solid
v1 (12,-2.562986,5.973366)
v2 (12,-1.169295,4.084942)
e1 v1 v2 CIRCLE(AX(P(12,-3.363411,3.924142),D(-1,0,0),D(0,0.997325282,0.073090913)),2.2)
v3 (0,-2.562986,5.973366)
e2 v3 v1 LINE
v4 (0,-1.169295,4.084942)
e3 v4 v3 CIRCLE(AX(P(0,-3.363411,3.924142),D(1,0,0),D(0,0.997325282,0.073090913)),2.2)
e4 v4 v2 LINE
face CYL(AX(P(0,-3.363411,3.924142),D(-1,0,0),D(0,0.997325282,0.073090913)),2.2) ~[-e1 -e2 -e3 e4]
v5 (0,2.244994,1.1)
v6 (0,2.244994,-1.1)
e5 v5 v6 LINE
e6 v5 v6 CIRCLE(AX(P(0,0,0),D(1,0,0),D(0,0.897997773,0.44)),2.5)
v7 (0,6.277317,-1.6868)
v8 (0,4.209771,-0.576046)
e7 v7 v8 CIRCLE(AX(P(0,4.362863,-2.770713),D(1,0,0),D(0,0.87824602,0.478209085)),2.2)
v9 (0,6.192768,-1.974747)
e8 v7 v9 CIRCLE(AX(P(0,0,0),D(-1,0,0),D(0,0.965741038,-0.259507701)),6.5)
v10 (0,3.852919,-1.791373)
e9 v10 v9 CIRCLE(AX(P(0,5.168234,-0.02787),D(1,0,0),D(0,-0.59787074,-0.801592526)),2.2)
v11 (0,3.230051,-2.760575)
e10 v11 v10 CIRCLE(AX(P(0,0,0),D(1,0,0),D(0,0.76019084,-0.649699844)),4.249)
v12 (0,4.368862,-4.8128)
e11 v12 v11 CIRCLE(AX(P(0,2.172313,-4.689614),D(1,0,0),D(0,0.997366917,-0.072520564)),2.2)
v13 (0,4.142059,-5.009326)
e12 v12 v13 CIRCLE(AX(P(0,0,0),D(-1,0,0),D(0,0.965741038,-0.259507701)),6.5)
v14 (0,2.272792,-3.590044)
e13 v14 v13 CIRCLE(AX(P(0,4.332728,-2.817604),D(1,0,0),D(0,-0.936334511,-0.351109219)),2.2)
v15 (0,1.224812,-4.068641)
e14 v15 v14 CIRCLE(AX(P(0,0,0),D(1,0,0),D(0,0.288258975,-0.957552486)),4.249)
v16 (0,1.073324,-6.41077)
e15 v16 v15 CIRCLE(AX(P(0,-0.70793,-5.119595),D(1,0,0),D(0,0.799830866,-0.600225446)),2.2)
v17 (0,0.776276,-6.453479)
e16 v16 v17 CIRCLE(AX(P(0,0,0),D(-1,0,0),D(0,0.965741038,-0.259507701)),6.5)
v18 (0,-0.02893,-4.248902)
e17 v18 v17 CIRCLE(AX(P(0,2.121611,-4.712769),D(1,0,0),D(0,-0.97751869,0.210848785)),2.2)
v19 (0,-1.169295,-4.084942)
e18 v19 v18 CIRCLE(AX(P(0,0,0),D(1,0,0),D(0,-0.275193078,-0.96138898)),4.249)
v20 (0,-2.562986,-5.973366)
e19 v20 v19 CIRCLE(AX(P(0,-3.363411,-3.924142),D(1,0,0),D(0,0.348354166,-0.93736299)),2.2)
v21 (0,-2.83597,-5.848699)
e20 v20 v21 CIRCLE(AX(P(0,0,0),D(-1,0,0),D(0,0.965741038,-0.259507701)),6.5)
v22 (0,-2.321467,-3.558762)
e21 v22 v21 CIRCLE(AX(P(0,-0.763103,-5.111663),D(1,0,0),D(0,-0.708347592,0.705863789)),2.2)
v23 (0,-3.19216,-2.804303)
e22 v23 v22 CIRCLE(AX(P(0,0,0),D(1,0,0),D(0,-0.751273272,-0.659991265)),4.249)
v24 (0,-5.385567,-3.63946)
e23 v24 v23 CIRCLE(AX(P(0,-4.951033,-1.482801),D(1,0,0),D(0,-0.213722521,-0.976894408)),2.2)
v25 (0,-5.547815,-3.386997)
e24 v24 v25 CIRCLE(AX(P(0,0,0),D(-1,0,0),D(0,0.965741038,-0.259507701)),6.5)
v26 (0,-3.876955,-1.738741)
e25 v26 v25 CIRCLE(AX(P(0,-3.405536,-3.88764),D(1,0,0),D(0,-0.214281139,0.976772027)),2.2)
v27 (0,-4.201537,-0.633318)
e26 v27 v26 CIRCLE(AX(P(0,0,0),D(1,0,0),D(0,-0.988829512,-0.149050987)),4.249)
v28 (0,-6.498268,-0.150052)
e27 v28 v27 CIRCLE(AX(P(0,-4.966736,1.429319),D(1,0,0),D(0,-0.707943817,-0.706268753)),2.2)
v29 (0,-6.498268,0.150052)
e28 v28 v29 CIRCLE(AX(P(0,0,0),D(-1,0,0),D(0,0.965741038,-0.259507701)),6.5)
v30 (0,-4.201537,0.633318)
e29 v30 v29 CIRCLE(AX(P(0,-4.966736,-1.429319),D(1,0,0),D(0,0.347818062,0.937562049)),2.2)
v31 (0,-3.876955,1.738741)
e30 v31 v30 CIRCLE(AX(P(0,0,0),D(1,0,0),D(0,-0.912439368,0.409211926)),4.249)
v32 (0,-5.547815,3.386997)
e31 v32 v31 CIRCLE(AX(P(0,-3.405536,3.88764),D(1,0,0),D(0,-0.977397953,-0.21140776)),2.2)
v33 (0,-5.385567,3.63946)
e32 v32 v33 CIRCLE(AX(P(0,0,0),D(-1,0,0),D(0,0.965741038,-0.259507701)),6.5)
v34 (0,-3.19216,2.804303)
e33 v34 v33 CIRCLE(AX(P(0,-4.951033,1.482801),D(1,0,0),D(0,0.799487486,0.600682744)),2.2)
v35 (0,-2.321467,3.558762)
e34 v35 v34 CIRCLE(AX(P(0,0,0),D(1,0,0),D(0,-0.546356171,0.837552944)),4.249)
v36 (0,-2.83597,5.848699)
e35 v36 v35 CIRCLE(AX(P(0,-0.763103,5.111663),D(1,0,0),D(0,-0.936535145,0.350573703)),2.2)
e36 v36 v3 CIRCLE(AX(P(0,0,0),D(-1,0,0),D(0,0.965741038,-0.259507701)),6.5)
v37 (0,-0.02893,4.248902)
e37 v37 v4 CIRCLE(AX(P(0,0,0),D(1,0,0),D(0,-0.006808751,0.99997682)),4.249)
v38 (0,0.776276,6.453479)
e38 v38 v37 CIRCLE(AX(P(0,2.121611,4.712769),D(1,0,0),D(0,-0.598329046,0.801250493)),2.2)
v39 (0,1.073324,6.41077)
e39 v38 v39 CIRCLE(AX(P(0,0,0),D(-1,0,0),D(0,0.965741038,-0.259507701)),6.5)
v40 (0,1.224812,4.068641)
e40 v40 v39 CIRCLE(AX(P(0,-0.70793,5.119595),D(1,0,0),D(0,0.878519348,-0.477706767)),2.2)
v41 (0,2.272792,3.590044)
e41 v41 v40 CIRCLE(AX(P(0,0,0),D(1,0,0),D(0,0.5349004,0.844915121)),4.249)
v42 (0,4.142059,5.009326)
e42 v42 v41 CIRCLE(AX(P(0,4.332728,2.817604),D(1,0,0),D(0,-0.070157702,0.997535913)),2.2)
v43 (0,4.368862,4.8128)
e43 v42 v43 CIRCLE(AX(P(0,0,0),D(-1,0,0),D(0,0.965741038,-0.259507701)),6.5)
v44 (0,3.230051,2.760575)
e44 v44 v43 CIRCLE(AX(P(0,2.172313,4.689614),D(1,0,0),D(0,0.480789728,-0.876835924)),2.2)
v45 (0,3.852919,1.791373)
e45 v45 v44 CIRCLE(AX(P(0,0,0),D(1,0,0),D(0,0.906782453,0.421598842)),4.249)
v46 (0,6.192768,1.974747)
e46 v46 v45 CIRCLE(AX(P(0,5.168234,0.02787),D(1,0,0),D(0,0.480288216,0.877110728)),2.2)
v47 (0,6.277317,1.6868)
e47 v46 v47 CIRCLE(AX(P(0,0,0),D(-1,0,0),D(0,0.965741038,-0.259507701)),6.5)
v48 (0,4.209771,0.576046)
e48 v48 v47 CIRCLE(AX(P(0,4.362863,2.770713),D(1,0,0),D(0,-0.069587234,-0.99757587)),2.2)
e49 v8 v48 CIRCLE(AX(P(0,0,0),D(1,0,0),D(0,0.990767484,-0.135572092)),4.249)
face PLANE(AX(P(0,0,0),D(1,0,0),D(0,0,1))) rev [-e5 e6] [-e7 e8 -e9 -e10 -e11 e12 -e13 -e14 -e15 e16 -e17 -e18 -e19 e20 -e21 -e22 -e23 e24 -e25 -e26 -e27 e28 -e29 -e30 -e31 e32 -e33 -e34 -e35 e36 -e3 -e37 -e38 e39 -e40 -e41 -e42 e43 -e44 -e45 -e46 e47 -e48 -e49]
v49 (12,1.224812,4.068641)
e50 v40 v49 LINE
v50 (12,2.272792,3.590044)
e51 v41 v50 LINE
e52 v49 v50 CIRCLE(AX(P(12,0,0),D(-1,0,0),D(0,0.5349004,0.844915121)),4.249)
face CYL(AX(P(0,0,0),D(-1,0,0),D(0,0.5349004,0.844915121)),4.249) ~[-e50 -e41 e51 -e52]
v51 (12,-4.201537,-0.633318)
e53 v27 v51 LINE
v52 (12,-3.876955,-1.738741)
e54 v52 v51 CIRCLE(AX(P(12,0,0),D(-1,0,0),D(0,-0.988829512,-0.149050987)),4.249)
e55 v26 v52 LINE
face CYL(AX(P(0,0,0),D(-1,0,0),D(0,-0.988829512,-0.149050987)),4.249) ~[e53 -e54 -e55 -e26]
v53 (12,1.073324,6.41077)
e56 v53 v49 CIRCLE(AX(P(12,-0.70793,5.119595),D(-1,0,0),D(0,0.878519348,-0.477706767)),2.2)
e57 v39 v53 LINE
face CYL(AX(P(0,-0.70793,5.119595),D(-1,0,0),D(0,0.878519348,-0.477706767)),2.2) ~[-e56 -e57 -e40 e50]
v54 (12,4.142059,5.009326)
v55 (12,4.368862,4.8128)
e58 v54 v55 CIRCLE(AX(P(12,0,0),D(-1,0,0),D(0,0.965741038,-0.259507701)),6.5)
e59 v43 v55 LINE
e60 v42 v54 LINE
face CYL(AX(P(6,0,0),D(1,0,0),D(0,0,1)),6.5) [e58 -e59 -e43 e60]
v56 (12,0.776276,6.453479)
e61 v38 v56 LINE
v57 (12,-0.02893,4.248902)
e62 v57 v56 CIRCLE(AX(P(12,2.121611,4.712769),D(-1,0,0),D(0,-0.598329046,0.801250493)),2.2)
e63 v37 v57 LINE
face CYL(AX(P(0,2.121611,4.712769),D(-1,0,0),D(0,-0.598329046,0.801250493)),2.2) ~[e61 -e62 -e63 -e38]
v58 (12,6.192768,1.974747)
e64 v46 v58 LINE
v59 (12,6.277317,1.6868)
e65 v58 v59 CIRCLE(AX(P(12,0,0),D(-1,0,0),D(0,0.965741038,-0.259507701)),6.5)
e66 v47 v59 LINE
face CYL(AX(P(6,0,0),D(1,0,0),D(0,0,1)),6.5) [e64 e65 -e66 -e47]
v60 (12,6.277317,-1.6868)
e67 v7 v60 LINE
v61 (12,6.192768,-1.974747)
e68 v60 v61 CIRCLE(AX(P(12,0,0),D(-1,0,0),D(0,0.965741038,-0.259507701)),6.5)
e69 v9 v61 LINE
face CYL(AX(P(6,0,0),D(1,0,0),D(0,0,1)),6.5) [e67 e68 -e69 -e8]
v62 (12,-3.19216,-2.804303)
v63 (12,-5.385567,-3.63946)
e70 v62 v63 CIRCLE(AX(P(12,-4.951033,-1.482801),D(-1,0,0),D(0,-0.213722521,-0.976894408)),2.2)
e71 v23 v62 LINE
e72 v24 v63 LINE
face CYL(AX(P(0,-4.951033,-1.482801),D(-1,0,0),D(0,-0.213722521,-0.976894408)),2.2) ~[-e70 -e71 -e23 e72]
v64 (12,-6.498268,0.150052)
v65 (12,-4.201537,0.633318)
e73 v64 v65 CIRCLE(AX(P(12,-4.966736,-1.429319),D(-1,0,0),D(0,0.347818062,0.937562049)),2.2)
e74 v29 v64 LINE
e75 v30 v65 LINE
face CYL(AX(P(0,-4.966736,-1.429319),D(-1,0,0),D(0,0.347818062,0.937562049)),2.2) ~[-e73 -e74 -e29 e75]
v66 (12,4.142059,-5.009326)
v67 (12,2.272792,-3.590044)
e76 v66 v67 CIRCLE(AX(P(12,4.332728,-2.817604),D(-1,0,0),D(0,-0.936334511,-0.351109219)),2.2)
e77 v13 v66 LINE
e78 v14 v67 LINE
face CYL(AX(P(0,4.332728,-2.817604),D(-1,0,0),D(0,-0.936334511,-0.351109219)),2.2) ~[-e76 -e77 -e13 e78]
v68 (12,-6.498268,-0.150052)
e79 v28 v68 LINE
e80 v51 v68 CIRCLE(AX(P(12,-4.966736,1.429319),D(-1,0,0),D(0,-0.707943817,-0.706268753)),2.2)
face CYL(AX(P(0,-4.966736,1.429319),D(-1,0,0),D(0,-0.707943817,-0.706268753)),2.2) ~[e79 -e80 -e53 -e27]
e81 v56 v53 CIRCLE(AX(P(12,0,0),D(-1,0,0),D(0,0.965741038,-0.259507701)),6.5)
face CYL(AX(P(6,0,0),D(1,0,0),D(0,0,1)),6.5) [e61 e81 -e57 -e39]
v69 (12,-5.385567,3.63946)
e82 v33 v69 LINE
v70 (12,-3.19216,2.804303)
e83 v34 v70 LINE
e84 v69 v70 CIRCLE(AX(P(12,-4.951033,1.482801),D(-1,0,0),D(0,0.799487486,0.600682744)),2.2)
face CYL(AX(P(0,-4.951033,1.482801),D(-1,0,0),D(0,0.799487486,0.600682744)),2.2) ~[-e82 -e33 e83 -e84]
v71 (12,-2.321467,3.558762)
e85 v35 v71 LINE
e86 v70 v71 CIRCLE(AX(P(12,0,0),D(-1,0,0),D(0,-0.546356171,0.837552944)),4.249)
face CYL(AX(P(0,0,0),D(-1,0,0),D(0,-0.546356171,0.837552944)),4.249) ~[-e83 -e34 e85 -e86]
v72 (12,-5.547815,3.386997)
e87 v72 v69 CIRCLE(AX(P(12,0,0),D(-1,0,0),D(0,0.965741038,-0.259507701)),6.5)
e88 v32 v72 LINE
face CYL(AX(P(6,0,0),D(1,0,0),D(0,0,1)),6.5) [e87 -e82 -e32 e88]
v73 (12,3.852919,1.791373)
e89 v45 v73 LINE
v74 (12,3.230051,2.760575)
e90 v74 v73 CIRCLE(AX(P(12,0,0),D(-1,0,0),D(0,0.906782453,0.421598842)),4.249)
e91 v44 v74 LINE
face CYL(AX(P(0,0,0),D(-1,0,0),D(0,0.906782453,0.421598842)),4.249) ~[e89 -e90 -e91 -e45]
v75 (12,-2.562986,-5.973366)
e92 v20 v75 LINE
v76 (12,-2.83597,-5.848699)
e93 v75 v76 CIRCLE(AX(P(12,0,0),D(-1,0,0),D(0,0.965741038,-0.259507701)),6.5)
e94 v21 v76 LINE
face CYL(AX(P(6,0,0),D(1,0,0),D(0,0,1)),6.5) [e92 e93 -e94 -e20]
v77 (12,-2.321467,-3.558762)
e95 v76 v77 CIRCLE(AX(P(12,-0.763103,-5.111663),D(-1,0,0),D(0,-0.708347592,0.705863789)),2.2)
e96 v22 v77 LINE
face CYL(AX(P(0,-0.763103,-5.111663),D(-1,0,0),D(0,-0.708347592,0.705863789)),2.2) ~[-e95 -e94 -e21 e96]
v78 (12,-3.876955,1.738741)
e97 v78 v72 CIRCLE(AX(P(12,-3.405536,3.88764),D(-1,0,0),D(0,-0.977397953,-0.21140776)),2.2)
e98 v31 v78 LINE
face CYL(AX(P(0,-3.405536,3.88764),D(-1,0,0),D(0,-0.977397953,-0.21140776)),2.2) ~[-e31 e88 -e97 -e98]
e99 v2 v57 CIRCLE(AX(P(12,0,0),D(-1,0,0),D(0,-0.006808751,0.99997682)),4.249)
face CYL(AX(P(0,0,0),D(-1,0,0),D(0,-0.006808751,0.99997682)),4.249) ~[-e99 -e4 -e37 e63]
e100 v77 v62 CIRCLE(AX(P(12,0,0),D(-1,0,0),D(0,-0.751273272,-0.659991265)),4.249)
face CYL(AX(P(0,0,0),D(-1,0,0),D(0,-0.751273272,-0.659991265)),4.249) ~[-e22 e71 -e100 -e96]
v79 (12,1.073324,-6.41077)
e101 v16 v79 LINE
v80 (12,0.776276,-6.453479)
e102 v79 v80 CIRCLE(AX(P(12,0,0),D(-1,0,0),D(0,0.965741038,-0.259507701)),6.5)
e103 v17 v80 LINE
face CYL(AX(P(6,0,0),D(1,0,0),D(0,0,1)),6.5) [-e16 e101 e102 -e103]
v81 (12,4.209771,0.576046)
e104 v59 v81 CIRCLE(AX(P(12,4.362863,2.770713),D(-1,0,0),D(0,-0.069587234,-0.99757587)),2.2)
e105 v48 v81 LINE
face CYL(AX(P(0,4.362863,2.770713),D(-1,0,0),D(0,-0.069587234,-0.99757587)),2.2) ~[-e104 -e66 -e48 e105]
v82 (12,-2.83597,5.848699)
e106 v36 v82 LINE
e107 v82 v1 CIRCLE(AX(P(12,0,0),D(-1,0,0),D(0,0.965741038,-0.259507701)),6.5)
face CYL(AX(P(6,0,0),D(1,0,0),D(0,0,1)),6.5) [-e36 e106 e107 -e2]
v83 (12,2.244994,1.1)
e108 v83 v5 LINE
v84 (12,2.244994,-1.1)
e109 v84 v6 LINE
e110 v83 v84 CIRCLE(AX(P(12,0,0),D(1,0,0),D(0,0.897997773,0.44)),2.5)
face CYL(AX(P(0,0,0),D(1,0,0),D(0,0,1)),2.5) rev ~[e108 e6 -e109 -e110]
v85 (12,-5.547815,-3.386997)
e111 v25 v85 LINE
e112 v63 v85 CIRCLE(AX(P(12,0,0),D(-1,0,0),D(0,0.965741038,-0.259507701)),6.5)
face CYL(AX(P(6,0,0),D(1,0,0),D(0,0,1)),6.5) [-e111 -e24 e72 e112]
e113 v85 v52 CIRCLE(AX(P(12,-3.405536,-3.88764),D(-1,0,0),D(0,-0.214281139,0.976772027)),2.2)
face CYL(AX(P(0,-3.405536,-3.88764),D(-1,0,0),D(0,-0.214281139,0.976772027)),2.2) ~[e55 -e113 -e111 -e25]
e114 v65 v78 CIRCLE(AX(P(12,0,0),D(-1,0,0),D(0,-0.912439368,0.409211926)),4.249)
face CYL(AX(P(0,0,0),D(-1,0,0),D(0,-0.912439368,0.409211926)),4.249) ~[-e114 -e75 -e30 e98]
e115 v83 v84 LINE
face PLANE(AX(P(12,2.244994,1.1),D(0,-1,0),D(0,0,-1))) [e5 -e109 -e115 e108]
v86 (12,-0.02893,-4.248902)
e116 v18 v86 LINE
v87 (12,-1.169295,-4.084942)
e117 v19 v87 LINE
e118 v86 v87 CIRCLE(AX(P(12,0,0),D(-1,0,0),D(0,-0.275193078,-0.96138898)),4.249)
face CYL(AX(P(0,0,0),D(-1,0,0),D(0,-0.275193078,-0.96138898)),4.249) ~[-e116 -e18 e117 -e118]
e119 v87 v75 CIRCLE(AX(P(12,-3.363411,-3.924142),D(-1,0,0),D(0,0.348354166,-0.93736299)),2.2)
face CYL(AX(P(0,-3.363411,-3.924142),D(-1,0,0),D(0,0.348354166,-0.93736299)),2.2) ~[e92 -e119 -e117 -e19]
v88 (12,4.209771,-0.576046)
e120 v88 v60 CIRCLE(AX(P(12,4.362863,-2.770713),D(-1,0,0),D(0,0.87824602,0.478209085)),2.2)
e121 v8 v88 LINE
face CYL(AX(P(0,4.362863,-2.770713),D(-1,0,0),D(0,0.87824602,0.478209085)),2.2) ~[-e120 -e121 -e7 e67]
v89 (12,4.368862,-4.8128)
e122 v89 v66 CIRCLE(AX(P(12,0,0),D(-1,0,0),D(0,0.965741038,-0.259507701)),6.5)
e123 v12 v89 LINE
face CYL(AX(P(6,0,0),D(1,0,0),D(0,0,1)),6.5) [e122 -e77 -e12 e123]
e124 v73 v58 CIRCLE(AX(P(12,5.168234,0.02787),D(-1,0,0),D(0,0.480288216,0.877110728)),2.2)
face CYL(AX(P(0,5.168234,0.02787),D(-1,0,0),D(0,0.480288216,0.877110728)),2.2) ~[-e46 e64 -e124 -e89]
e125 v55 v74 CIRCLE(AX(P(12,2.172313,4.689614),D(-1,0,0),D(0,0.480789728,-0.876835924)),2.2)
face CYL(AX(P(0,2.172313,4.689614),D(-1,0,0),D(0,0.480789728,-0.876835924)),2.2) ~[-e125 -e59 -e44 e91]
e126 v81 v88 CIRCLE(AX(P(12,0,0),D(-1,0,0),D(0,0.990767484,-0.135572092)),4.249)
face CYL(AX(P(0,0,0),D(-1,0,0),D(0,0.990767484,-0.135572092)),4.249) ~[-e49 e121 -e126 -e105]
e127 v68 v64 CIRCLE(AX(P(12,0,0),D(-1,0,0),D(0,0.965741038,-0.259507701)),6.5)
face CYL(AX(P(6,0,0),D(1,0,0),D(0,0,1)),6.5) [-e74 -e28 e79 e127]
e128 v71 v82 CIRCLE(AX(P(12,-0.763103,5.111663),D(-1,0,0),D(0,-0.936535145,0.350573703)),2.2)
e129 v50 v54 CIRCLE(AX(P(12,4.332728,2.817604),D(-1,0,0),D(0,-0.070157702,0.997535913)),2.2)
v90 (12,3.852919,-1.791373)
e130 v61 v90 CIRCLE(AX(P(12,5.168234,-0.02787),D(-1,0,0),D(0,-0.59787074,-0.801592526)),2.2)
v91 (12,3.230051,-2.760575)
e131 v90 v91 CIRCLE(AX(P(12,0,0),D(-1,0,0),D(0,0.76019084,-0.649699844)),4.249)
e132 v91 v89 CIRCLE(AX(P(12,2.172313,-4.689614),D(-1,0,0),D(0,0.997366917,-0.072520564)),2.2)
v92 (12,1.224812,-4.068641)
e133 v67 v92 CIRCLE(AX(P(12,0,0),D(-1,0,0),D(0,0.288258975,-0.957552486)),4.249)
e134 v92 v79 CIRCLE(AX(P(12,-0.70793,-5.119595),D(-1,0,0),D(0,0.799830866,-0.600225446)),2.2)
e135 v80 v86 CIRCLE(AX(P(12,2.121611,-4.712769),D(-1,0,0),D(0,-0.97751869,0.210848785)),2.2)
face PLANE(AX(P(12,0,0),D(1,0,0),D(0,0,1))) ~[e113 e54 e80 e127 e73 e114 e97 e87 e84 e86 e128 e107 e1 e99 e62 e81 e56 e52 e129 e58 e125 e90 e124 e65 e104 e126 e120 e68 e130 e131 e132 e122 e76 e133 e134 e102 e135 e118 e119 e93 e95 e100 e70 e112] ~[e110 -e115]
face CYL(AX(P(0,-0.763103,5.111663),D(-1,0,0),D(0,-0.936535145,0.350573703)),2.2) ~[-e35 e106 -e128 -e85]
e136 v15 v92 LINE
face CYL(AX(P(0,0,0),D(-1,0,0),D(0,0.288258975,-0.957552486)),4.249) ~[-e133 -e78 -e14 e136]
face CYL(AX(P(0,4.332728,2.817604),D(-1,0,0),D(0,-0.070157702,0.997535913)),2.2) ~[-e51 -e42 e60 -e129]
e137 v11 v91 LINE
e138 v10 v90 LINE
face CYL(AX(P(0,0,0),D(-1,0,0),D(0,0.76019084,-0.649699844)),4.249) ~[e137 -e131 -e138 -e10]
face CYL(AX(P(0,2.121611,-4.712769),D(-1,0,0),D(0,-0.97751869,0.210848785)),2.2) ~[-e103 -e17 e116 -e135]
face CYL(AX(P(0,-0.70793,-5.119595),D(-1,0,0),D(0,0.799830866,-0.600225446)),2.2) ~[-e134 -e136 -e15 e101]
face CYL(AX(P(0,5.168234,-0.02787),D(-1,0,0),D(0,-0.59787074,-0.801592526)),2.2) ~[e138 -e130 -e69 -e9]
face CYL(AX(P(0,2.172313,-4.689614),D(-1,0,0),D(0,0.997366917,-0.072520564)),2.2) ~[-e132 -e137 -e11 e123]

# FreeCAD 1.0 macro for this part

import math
import FreeCAD as App
import Part
import Sketcher
from FreeCAD import Vector
Q = App.Units.Quantity

doc = App.newDocument("Part")
body = doc.addObject("PartDesign::Body", "Body")

sketch1 = body.newObject("Sketcher::SketchObject", "Sketch")
sketch1.AttachmentSupport = (doc.getObject("XZ_Plane"), [""])
sketch1.MapMode = "FlatFace"
sketch1.addGeometry([
    Part.LineSegment(Vector(0, -6.5, 0), Vector(0, 0, 0)),
    Part.LineSegment(Vector(0, 0, 0), Vector(12, 0, 0)),
    Part.LineSegment(Vector(12, 0, 0), Vector(12, -6.5, 0)),
    Part.LineSegment(Vector(12, -6.5, 0), Vector(0, -6.5, 0)),
], False)
sketch1.addConstraint([
    Sketcher.Constraint("Coincident", 0, 2, 1, 1),
    Sketcher.Constraint("Coincident", 1, 2, 2, 1),
    Sketcher.Constraint("Coincident", 2, 2, 3, 1),
    Sketcher.Constraint("Coincident", 3, 2, 0, 1),
    Sketcher.Constraint("Vertical", 0),
    Sketcher.Constraint("Horizontal", 1),
    Sketcher.Constraint("Vertical", 2),
    Sketcher.Constraint("Horizontal", 3),
    Sketcher.Constraint("Coincident", 0, 2, -1, 1),
    Sketcher.Constraint("DistanceX", 1, 1, 1, 2, Q("12 mm")),
    Sketcher.Constraint("DistanceY", 0, 1, 0, 2, Q("6.5 mm")),
])
revolution = body.newObject("PartDesign::Revolution", "Revolution")
revolution.Profile = sketch1
revolution.ReferenceAxis = (sketch1, ["H_Axis"])
revolution.Angle = 360

sketch2 = body.newObject("Sketcher::SketchObject", "Sketch001")
sketch2.AttachmentSupport = (doc.getObject("YZ_Plane"), [""])
sketch2.MapMode = "FlatFace"
sketch2.addGeometry([
    Part.ArcOfCircle(Part.Circle(Vector(0, 0, 0), Vector(0, 0, 1), 4.249), math.radians(-7.791702), math.radians(7.791702)),
    Part.ArcOfCircle(Part.Circle(Vector(4.362863, -2.770713, 0), Vector(0, 0, 1), 2.2), math.radians(28.5685), math.radians(93.99028)),
    Part.ArcOfCircle(Part.Circle(Vector(0, 0, 0), Vector(0, 0, 1), 6.5254), math.radians(-15.27065), math.radians(15.27065)),
    Part.ArcOfCircle(Part.Circle(Vector(4.362863, 2.770713, 0), Vector(0, 0, 1), 2.2), math.radians(-93.99028), math.radians(-28.5685)),
], False)
sketch2.addConstraint([
    Sketcher.Constraint("Coincident", 0, 1, 1, 2),
    Sketcher.Constraint("Coincident", 1, 1, 2, 1),
    Sketcher.Constraint("Coincident", 2, 2, 3, 2),
    Sketcher.Constraint("Coincident", 3, 1, 0, 2),
    Sketcher.Constraint("Coincident", 0, 3, -1, 1),
    Sketcher.Constraint("Coincident", 2, 3, -1, 1),
    Sketcher.Constraint("Equal", 1, 3),
    Sketcher.Constraint("Symmetric", 1, 3, 3, 3, -1),
    Sketcher.Constraint("Radius", 1, Q("2.2 mm")),
    Sketcher.Constraint("Radius", 0, Q("4.249 mm")),
    Sketcher.Constraint("Radius", 2, Q("6.5254 mm")),
    Sketcher.Constraint("DistanceY", 0, 1, 2, 2, Q("2.294699 mm")),
    Sketcher.Constraint("DistanceX", -1, 1, 0, 1, Q("4.209771 mm")),
])
pocket1 = body.newObject("PartDesign::Pocket", "Pocket")
pocket1.Profile = sketch2
pocket1.Type = "ThroughAll"
pocket1.Reversed = True
doc.recompute()

polarpattern = body.newObject("PartDesign::PolarPattern", "PolarPattern")
polarpattern.Originals = [pocket1]
polarpattern.Axis = (doc.getObject("X_Axis"), [""])
polarpattern.Angle = 360
polarpattern.Occurrences = 11
body.Tip = polarpattern

sketch3 = body.newObject("Sketcher::SketchObject", "Sketch002")
sketch3.AttachmentSupport = (doc.getObject("YZ_Plane"), [""])
sketch3.MapMode = "FlatFace"
sketch3.addGeometry(Part.Circle(Vector(0, 0, 0), Vector(0, 0, 1), 2.5), False)
sketch3.addConstraint([
    Sketcher.Constraint("Coincident", 0, 3, -1, 1),
    Sketcher.Constraint("Diameter", 0, Q("5 mm")),
])
pocket2 = body.newObject("PartDesign::Pocket", "Pocket001")
pocket2.Profile = sketch3
pocket2.Length = 100.000102
pocket2.Midplane = True

sketch4 = body.newObject("Sketcher::SketchObject", "Sketch003")
sketch4.AttachmentSupport = (doc.getObject("YZ_Plane"), [""])
sketch4.MapMode = "FlatFace"
sketch4.AttachmentOffset = App.Placement(Vector(0, 0, 12), App.Rotation())
sketch4.addGeometry([
    Part.LineSegment(Vector(2.244994, 1.1, 0), Vector(2.244994, -1.1, 0)),
    Part.ArcOfCircle(Part.Circle(Vector(0, 0, 0), Vector(0, 0, 1), 2.5), math.radians(-26.103881), math.radians(26.103881)),
], False)
sketch4.addConstraint([
    Sketcher.Constraint("Coincident", 0, 1, 1, 2),
    Sketcher.Constraint("Coincident", 1, 1, 0, 2),
    Sketcher.Constraint("Vertical", 0),
    Sketcher.Constraint("Coincident", 1, 3, -1, 1),
    Sketcher.Constraint("Radius", 1, Q("2.5 mm")),
    Sketcher.Constraint("DistanceY", 0, 2, 0, 1, Q("2.2 mm")),
])
pad1 = body.newObject("PartDesign::Pad", "Pad")
pad1.Profile = sketch4
pad1.Length = 12
pad1.Reversed = True

doc.recompute()
